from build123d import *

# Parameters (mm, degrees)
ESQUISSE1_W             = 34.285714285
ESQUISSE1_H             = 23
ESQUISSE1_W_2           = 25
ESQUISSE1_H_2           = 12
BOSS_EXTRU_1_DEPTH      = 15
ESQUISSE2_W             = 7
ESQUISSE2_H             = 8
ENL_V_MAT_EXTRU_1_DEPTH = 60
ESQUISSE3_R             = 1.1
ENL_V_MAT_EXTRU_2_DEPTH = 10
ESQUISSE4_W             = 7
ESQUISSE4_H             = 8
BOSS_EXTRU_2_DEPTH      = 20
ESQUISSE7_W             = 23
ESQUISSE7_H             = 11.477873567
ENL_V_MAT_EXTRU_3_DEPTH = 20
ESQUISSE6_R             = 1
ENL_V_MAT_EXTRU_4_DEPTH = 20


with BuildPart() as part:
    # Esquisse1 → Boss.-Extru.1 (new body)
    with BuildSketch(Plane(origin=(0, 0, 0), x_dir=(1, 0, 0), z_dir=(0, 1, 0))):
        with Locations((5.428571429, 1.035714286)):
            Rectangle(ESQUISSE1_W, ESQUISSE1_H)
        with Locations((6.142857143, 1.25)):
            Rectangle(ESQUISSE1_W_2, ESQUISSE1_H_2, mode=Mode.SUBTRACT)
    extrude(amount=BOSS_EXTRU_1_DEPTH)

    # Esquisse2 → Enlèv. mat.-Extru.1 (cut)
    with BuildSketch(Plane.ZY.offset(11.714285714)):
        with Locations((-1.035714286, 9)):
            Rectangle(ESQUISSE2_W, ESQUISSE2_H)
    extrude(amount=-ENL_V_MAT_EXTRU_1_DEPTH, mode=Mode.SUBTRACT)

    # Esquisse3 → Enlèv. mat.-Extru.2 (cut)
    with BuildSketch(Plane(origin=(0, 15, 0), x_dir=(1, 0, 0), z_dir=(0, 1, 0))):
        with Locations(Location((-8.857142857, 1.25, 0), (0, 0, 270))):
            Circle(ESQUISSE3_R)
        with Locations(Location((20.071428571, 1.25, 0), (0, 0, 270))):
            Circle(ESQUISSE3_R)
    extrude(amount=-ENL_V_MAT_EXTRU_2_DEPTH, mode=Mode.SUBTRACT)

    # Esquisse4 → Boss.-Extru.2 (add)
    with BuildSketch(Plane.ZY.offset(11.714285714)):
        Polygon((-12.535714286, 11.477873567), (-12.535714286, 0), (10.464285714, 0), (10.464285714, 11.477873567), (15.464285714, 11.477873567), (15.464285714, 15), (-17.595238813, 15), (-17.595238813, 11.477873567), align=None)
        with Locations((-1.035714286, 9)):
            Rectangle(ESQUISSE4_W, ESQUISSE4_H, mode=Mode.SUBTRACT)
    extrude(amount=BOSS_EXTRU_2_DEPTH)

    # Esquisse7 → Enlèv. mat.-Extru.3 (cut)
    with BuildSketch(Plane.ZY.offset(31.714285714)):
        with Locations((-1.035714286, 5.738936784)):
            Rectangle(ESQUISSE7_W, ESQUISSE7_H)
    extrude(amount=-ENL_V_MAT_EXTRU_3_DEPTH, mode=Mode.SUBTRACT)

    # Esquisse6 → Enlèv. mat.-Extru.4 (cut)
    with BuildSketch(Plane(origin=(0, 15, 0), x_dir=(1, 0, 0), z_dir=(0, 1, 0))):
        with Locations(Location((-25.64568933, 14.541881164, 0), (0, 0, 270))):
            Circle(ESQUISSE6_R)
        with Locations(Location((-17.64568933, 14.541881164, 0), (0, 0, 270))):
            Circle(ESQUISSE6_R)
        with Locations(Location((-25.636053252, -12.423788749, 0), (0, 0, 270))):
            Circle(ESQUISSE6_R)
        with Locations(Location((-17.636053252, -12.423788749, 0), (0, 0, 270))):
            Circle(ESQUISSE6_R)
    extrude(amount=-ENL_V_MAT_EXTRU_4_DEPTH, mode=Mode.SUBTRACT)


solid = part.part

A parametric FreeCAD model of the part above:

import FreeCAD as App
import Part
import Sketcher

V = App.Vector

doc = App.newDocument("Part")
body = doc.addObject("PartDesign::Body", "Body")

# Sketch on XZ plane
sketch1 = doc.addObject("Sketcher::SketchObject", "Sketch")
body.addObject(sketch1)
sketch1.AttachmentSupport = (doc.XZ_Plane, [""])
sketch1.MapMode = "FlatFace"
sketch1.addGeometry([
    Part.LineSegment(V(-11.714286, -12.535714, 0), V(-11.714286, 10.464286, 0)),  # 0
    Part.LineSegment(V(-11.714286, 10.464286, 0), V(22.571429, 10.464286, 0)),  # 1
    Part.LineSegment(V(22.571429, 10.464286, 0), V(22.571429, -12.535714, 0)),  # 2
    Part.LineSegment(V(22.571429, -12.535714, 0), V(-11.714286, -12.535714, 0)),  # 3
    Part.LineSegment(V(18.642857, 4.75, 0), V(-6.357143, 4.75, 0)),  # 4
    Part.LineSegment(V(-6.357143, 4.75, 0), V(-6.357143, -7.25, 0)),  # 5
    Part.LineSegment(V(-6.357143, -7.25, 0), V(18.642857, -7.25, 0)),  # 6
    Part.LineSegment(V(18.642857, -7.25, 0), V(18.642857, 4.75, 0)),  # 7
], False)
sketch1.addConstraint([
    Sketcher.Constraint("Coincident", 0, 2, 1, 1),
    Sketcher.Constraint("Coincident", 1, 2, 2, 1),
    Sketcher.Constraint("Coincident", 2, 2, 3, 1),
    Sketcher.Constraint("Coincident", 3, 2, 0, 1),
    Sketcher.Constraint("Coincident", 4, 2, 5, 1),
    Sketcher.Constraint("Coincident", 5, 2, 6, 1),
    Sketcher.Constraint("Coincident", 6, 2, 7, 1),
    Sketcher.Constraint("Coincident", 7, 2, 4, 1),
    Sketcher.Constraint("Vertical", 0),
    Sketcher.Constraint("Horizontal", 1),
    Sketcher.Constraint("Vertical", 2),
    Sketcher.Constraint("Horizontal", 3),
    Sketcher.Constraint("Horizontal", 4),
    Sketcher.Constraint("Vertical", 5),
    Sketcher.Constraint("Horizontal", 6),
    Sketcher.Constraint("Vertical", 7),
    Sketcher.Constraint("DistanceX", 4, 2, 4, 1, 25.0),
    Sketcher.Constraint("DistanceY", 0, 1, 0, 2, 23.0),
    Sketcher.Constraint("DistanceY", 5, 2, 5, 1, 12.0),
    Sketcher.Constraint("DistanceY", -1, 1, 4, 2, 4.75),
    Sketcher.Constraint("DistanceX", 1, 1, 1, 2, 34.285714),
    Sketcher.Constraint("DistanceX", -1, 1, 1, 2, 22.571429),
    Sketcher.Constraint("DistanceX", 4, 2, 1, 2, 28.928571),
    Sketcher.Constraint("DistanceY", -1, 1, 0, 2, 10.464286),
])
pad1 = doc.addObject("PartDesign::Pad", "Pad")
body.addObject(pad1)
pad1.Profile = sketch1
pad1.Length = 15
pad1.Reversed = True

# Sketch on YZ plane
sketch2 = doc.addObject("Sketcher::SketchObject", "Sketch001")
body.addObject(sketch2)
sketch2.AttachmentSupport = (doc.YZ_Plane, [""])
sketch2.MapMode = "FlatFace"
sketch2.AttachmentOffset = App.Placement(V(0, 0, -11.714286), App.Rotation())
sketch2.addGeometry([
    Part.LineSegment(V(13, -4.535714, 0), V(5, -4.535714, 0)),
    Part.LineSegment(V(5, -4.535714, 0), V(5, 2.464286, 0)),
    Part.LineSegment(V(5, 2.464286, 0), V(13, 2.464286, 0)),
    Part.LineSegment(V(13, 2.464286, 0), V(13, -4.535714, 0)),
], False)
sketch2.addConstraint([
    Sketcher.Constraint("Coincident", 0, 2, 1, 1),
    Sketcher.Constraint("Coincident", 1, 2, 2, 1),
    Sketcher.Constraint("Coincident", 2, 2, 3, 1),
    Sketcher.Constraint("Coincident", 3, 2, 0, 1),
    Sketcher.Constraint("Horizontal", 0),
    Sketcher.Constraint("Vertical", 1),
    Sketcher.Constraint("Horizontal", 2),
    Sketcher.Constraint("Vertical", 3),
    Sketcher.Constraint("DistanceX", 0, 2, 0, 1, 8.0),
    Sketcher.Constraint("DistanceY", 1, 1, 1, 2, 7.0),
    Sketcher.Constraint("DistanceX", -1, 1, 0, 2, 5.0),
    Sketcher.Constraint("DistanceY", 0, 2, -1, 1, 4.535714),
])
pocket1 = doc.addObject("PartDesign::Pocket", "Pocket")
body.addObject(pocket1)
pocket1.Profile = sketch2
pocket1.Length = 60
pocket1.Reversed = True

# Sketch on XZ plane
sketch3 = doc.addObject("Sketcher::SketchObject", "Sketch002")
body.addObject(sketch3)
sketch3.AttachmentSupport = (doc.XZ_Plane, [""])
sketch3.MapMode = "FlatFace"
sketch3.AttachmentOffset = App.Placement(V(0, 0, -15), App.Rotation())
sketch3.addGeometry([
    Part.Circle(V(-8.857143, -1.25, 0), V(0, 0, 1), 1.1),
    Part.Circle(V(20.071429, -1.25, 0), V(0, 0, 1), 1.1),
], False)
sketch3.addConstraint([
    Sketcher.Constraint("Equal", 0, 1),
    Sketcher.Constraint("Horizontal", 0, 3, 1, 3),
    Sketcher.Constraint("Diameter", 0, 2.2),
    Sketcher.Constraint("DistanceY", 0, 3, -1, 1, 1.25),
    Sketcher.Constraint("DistanceX", -1, 1, 1, 3, 20.071429),
    Sketcher.Constraint("DistanceX", 0, 3, 1, 3, 28.928571),
])
pocket2 = doc.addObject("PartDesign::Pocket", "Pocket001")
body.addObject(pocket2)
pocket2.Profile = sketch3
pocket2.Length = 10
pocket2.Reversed = True

# Sketch on YZ plane
sketch4 = doc.addObject("Sketcher::SketchObject", "Sketch003")
body.addObject(sketch4)
sketch4.AttachmentSupport = (doc.YZ_Plane, [""])
sketch4.MapMode = "FlatFace"
sketch4.AttachmentOffset = App.Placement(V(0, 0, -11.714286), App.Rotation())
sketch4.addGeometry([
    Part.LineSegment(V(11.477874, -12.535714, 0), V(0, -12.535714, 0)),  # 0
    Part.LineSegment(V(0, -12.535714, 0), V(0, 10.464286, 0)),  # 1
    Part.LineSegment(V(0, 10.464286, 0), V(11.477874, 10.464286, 0)),  # 2
    Part.LineSegment(V(11.477874, 10.464286, 0), V(11.477874, 15.464286, 0)),  # 3
    Part.LineSegment(V(11.477874, 15.464286, 0), V(15, 15.464286, 0)),  # 4
    Part.LineSegment(V(15, 15.464286, 0), V(15, -17.595239, 0)),  # 5
    Part.LineSegment(V(15, -17.595239, 0), V(11.477874, -17.595239, 0)),  # 6
    Part.LineSegment(V(11.477874, -17.595239, 0), V(11.477874, -12.535714, 0)),  # 7
    Part.LineSegment(V(5, 2.464286, 0), V(5, -4.535714, 0)),  # 8
    Part.LineSegment(V(5, -4.535714, 0), V(13, -4.535714, 0)),  # 9
    Part.LineSegment(V(13, -4.535714, 0), V(13, 2.464286, 0)),  # 10
    Part.LineSegment(V(13, 2.464286, 0), V(5, 2.464286, 0)),  # 11
], False)
sketch4.addConstraint([
    Sketcher.Constraint("Coincident", 0, 2, 1, 1),
    Sketcher.Constraint("Coincident", 1, 2, 2, 1),
    Sketcher.Constraint("Coincident", 2, 2, 3, 1),
    Sketcher.Constraint("Coincident", 3, 2, 4, 1),
    Sketcher.Constraint("Coincident", 4, 2, 5, 1),
    Sketcher.Constraint("Coincident", 5, 2, 6, 1),
    Sketcher.Constraint("Coincident", 6, 2, 7, 1),
    Sketcher.Constraint("Coincident", 7, 2, 0, 1),
    Sketcher.Constraint("Coincident", 8, 2, 9, 1),
    Sketcher.Constraint("Coincident", 9, 2, 10, 1),
    Sketcher.Constraint("Coincident", 10, 2, 11, 1),
    Sketcher.Constraint("Coincident", 11, 2, 8, 1),
    Sketcher.Constraint("Horizontal", 0),
    Sketcher.Constraint("Vertical", 1),
    Sketcher.Constraint("Horizontal", 2),
    Sketcher.Constraint("Vertical", 3),
    Sketcher.Constraint("Horizontal", 4),
    Sketcher.Constraint("Vertical", 5),
    Sketcher.Constraint("Horizontal", 6),
    Sketcher.Constraint("Vertical", 7),
    Sketcher.Constraint("Vertical", 8),
    Sketcher.Constraint("Horizontal", 9),
    Sketcher.Constraint("Vertical", 10),
    Sketcher.Constraint("Horizontal", 11),
    Sketcher.Constraint("PointOnObject", 0, 2, -2),
    Sketcher.Constraint("Vertical", 3, 2, 6, 2),
    Sketcher.Constraint("DistanceX", 9, 1, 9, 2, 8.0),
    Sketcher.Constraint("DistanceY", 1, 1, 1, 2, 23.0),
    Sketcher.Constraint("DistanceY", 3, 1, 3, 2, 5.0),
    Sketcher.Constraint("DistanceY", 8, 2, 8, 1, 7.0),
    Sketcher.Constraint("DistanceX", -1, 1, 4, 2, 15.0),
    Sketcher.Constraint("DistanceX", -1, 1, 8, 2, 5.0),
    Sketcher.Constraint("DistanceY", 0, 2, 8, 2, 8.0),
    Sketcher.Constraint("DistanceX", 0, 2, 0, 1, 11.477874),
    Sketcher.Constraint("DistanceY", 5, 2, 5, 1, 33.059525),
    Sketcher.Constraint("DistanceY", 5, 2, -1, 1, 17.595239),
])
pad2 = doc.addObject("PartDesign::Pad", "Pad001")
body.addObject(pad2)
pad2.Profile = sketch4
pad2.Length = 20
pad2.Reversed = True

# Sketch on YZ plane
sketch5 = doc.addObject("Sketcher::SketchObject", "Sketch004")
body.addObject(sketch5)
sketch5.AttachmentSupport = (doc.YZ_Plane, [""])
sketch5.MapMode = "FlatFace"
sketch5.AttachmentOffset = App.Placement(V(0, 0, -31.714286), App.Rotation())
sketch5.addGeometry([
    Part.LineSegment(V(11.477874, -12.535714, 0), V(0, -12.535714, 0)),
    Part.LineSegment(V(0, -12.535714, 0), V(0, 10.464286, 0)),
    Part.LineSegment(V(0, 10.464286, 0), V(11.477874, 10.464286, 0)),
    Part.LineSegment(V(11.477874, 10.464286, 0), V(11.477874, -12.535714, 0)),
], False)
sketch5.addConstraint([
    Sketcher.Constraint("Coincident", 0, 2, 1, 1),
    Sketcher.Constraint("Coincident", 1, 2, 2, 1),
    Sketcher.Constraint("Coincident", 2, 2, 3, 1),
    Sketcher.Constraint("Coincident", 3, 2, 0, 1),
    Sketcher.Constraint("Horizontal", 0),
    Sketcher.Constraint("Vertical", 1),
    Sketcher.Constraint("Horizontal", 2),
    Sketcher.Constraint("Vertical", 3),
    Sketcher.Constraint("PointOnObject", 0, 2, -2),
    Sketcher.Constraint("DistanceY", 1, 1, 1, 2, 23.0),
    Sketcher.Constraint("DistanceX", 0, 2, 0, 1, 11.477874),
    Sketcher.Constraint("DistanceY", 0, 2, -1, 1, 12.535714),
])
pocket3 = doc.addObject("PartDesign::Pocket", "Pocket002")
body.addObject(pocket3)
pocket3.Profile = sketch5
pocket3.Length = 20
pocket3.Reversed = True

# Sketch on XZ plane
sketch6 = doc.addObject("Sketcher::SketchObject", "Sketch005")
body.addObject(sketch6)
sketch6.AttachmentSupport = (doc.XZ_Plane, [""])
sketch6.MapMode = "FlatFace"
sketch6.AttachmentOffset = App.Placement(V(0, 0, -15), App.Rotation())
sketch6.addGeometry([
    Part.Circle(V(-25.645689, -14.541881, 0), V(0, 0, 1), 1),
    Part.Circle(V(-17.645689, -14.541881, 0), V(0, 0, 1), 1),
    Part.Circle(V(-25.636053, 12.423789, 0), V(0, 0, 1), 1),
    Part.Circle(V(-17.636053, 12.423789, 0), V(0, 0, 1), 1),
], False)
sketch6.addConstraint([
    Sketcher.Constraint("Equal", 0, 1),
    Sketcher.Constraint("Equal", 1, 2),
    Sketcher.Constraint("Equal", 2, 3),
    Sketcher.Constraint("Horizontal", 0, 3, 1, 3),
    Sketcher.Constraint("Horizontal", 2, 3, 3, 3),
    Sketcher.Constraint("Diameter", 0, 2.0),
    Sketcher.Constraint("DistanceX", 0, 3, 1, 3, 8.0),
    Sketcher.Constraint("DistanceX", 2, 3, 3, 3, 8.0),
    Sketcher.Constraint("DistanceX", 0, 3, -1, 1, 25.645689),
    Sketcher.Constraint("DistanceY", 0, 3, -1, 1, 14.541881),
    Sketcher.Constraint("DistanceY", -1, 1, 2, 3, 12.423789),
    Sketcher.Constraint("DistanceX", 2, 3, -1, 1, 25.636053),
])
pocket4 = doc.addObject("PartDesign::Pocket", "Pocket003")
body.addObject(pocket4)
pocket4.Profile = sketch6
pocket4.Length = 20
pocket4.Reversed = True

doc.recompute()
